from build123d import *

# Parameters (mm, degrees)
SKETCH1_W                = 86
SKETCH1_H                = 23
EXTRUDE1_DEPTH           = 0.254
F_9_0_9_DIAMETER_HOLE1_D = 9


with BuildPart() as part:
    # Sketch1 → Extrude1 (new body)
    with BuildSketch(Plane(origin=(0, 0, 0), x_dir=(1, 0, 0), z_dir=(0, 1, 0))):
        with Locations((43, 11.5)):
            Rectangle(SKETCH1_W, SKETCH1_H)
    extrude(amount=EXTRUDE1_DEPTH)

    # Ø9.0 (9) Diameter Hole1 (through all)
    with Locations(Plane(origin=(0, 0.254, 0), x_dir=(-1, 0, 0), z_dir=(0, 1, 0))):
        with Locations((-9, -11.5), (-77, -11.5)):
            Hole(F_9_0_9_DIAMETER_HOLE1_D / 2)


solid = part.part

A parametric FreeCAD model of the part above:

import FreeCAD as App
import Part
import Sketcher

V = App.Vector
Q = App.Units.Quantity

doc = App.newDocument("Part")
body = doc.addObject("PartDesign::Body", "Body")

sketch1 = body.newObject("Sketcher::SketchObject", "Sketch")
sketch1.AttachmentSupport = (doc.getObject("XZ_Plane"), [""])
sketch1.MapMode = "FlatFace"
sketch1.addGeometry([
    Part.LineSegment(V(0, -23, 0), V(0, 0, 0)),
    Part.LineSegment(V(0, 0, 0), V(86, 0, 0)),
    Part.LineSegment(V(86, 0, 0), V(86, -23, 0)),
    Part.LineSegment(V(86, -23, 0), V(0, -23, 0)),
], False)
sketch1.addConstraint([
    Sketcher.Constraint("Coincident", 0, 2, 1, 1),
    Sketcher.Constraint("Coincident", 1, 2, 2, 1),
    Sketcher.Constraint("Coincident", 2, 2, 3, 1),
    Sketcher.Constraint("Coincident", 3, 2, 0, 1),
    Sketcher.Constraint("Vertical", 0),
    Sketcher.Constraint("Horizontal", 1),
    Sketcher.Constraint("Vertical", 2),
    Sketcher.Constraint("Horizontal", 3),
    Sketcher.Constraint("Coincident", 0, 2, -1, 1),
    Sketcher.Constraint("DistanceX", 1, 1, 1, 2, Q("86 mm")),
    Sketcher.Constraint("DistanceY", 0, 1, 0, 2, Q("23 mm")),
])
pad1 = body.newObject("PartDesign::Pad", "Pad")
pad1.Profile = sketch1
pad1.Length = 0.254
pad1.Reversed = True

sketch2 = body.newObject("Sketcher::SketchObject", "Sketch001")
sketch2.AttachmentSupport = (doc.getObject("XZ_Plane"), [""])
sketch2.MapMode = "FlatFace"
sketch2.AttachmentOffset = App.Placement(V(0, 0, -0.254), App.Rotation())
sketch2.addGeometry([
    Part.Circle(V(9, -11.5, 0), V(0, 0, 1), 4.5),
    Part.Circle(V(77, -11.5, 0), V(0, 0, 1), 4.5),
], False)
sketch2.addConstraint([
    Sketcher.Constraint("Equal", 0, 1),
    Sketcher.Constraint("Horizontal", 0, 3, 1, 3),
    Sketcher.Constraint("Diameter", 0, Q("9 mm")),
    Sketcher.Constraint("DistanceX", -1, 1, 0, 3, Q("9 mm")),
    Sketcher.Constraint("DistanceX", -1, 1, 1, 3, Q("77 mm")),
    Sketcher.Constraint("DistanceY", 0, 3, -1, 1, Q("11.5 mm")),
])
doc.recompute()
hole = body.newObject("PartDesign::Hole", "Hole")
hole.Profile = sketch2
hole.ThreadType = "None"
hole.Diameter = 9
hole.DepthType = "ThroughAll"
hole.Reversed = True

doc.recompute()
